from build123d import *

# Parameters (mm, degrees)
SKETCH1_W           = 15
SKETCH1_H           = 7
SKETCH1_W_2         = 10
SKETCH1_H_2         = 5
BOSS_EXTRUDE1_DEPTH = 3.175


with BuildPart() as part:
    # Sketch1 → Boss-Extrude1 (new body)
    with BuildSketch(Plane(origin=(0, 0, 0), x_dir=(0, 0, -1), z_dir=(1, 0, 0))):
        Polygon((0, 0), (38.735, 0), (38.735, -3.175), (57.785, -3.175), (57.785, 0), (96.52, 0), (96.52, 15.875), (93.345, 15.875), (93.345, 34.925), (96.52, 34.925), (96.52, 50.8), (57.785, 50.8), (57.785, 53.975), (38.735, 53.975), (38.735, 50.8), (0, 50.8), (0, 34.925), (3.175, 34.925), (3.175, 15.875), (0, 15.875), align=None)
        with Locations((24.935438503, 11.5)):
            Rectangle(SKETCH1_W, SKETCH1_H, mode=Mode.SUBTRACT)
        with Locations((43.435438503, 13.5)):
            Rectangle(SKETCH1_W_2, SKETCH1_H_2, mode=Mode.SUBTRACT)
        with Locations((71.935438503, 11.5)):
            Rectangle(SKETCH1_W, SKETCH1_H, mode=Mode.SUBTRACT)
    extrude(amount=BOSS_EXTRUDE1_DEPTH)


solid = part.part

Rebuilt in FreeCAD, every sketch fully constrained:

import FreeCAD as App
import Part
import Sketcher
from FreeCAD import Vector


def add_polygon(sketch, points):
    """Adds a closed chain of lines whose ends are joined by coincident constraints."""
    first, n = sketch.GeometryCount, len(points)
    for a, b in zip(points, points[1:] + points[:1]):
        sketch.addGeometry(Part.LineSegment(App.Vector(*a, 0), App.Vector(*b, 0)), False)
    for i in range(n):
        sketch.addConstraint(Sketcher.Constraint("Coincident", first + i, 2, first + (i + 1) % n, 1))

doc = App.newDocument("Part")
body = doc.addObject("PartDesign::Body", "Body")

sketch1 = body.newObject("Sketcher::SketchObject", "Sketch")
sketch1.AttachmentSupport = (doc.getObject("YZ_Plane"), [""])
sketch1.MapMode = "FlatFace"
add_polygon(sketch1, [(0, 0), (0, -38.7), (-3.2, -38.7), (-3.2, -57.8), (0, -57.8), (0, -96.5), (15.9, -96.5), (15.9, -93.3), (34.9, -93.3), (34.9, -96.5), (50.8, -96.5), (50.8, -57.8), (54, -57.8), (54, -38.7), (50.8, -38.7), (50.8, 0), (34.9, 0), (34.9, -3.2), (15.9, -3.2), (15.9, 0)])
add_polygon(sketch1, [(8, -32.4), (8, -17.4), (15, -17.4), (15, -32.4)])
add_polygon(sketch1, [(8, -79.4), (8, -64.4), (15, -64.4), (15, -79.4)])
add_polygon(sketch1, [(11, -48.4), (11, -38.4), (16, -38.4), (16, -48.4)])
sketch1.addConstraint(Sketcher.Constraint("Vertical", 0))
sketch1.addConstraint(Sketcher.Constraint("Horizontal", 1))
sketch1.addConstraint(Sketcher.Constraint("Vertical", 2))
sketch1.addConstraint(Sketcher.Constraint("Horizontal", 3))
sketch1.addConstraint(Sketcher.Constraint("Vertical", 4))
sketch1.addConstraint(Sketcher.Constraint("Horizontal", 5))
sketch1.addConstraint(Sketcher.Constraint("Vertical", 6))
sketch1.addConstraint(Sketcher.Constraint("Horizontal", 7))
sketch1.addConstraint(Sketcher.Constraint("Vertical", 8))
sketch1.addConstraint(Sketcher.Constraint("Horizontal", 9))
sketch1.addConstraint(Sketcher.Constraint("Vertical", 10))
sketch1.addConstraint(Sketcher.Constraint("Horizontal", 11))
sketch1.addConstraint(Sketcher.Constraint("Vertical", 12))
sketch1.addConstraint(Sketcher.Constraint("Horizontal", 13))
sketch1.addConstraint(Sketcher.Constraint("Vertical", 14))
sketch1.addConstraint(Sketcher.Constraint("Horizontal", 15))
sketch1.addConstraint(Sketcher.Constraint("Vertical", 16))
sketch1.addConstraint(Sketcher.Constraint("Horizontal", 17))
sketch1.addConstraint(Sketcher.Constraint("Vertical", 18))
sketch1.addConstraint(Sketcher.Constraint("Horizontal", 19))
sketch1.addConstraint(Sketcher.Constraint("Vertical", 20))
sketch1.addConstraint(Sketcher.Constraint("Horizontal", 21))
sketch1.addConstraint(Sketcher.Constraint("Vertical", 22))
sketch1.addConstraint(Sketcher.Constraint("Horizontal", 23))
sketch1.addConstraint(Sketcher.Constraint("Vertical", 24))
sketch1.addConstraint(Sketcher.Constraint("Horizontal", 25))
sketch1.addConstraint(Sketcher.Constraint("Vertical", 26))
sketch1.addConstraint(Sketcher.Constraint("Horizontal", 27))
sketch1.addConstraint(Sketcher.Constraint("Vertical", 28))
sketch1.addConstraint(Sketcher.Constraint("Horizontal", 29))
sketch1.addConstraint(Sketcher.Constraint("Vertical", 30))
sketch1.addConstraint(Sketcher.Constraint("Horizontal", 31))
sketch1.addConstraint(Sketcher.Constraint("Coincident", 19, 2, -1, 1))
sketch1.addConstraint(Sketcher.Constraint("PointOnObject", 3, 2, -2))
sketch1.addConstraint(Sketcher.Constraint("PointOnObject", 14, 2, -1))
sketch1.addConstraint(Sketcher.Constraint("Horizontal", 5, 2, 8, 2))
sketch1.addConstraint(Sketcher.Constraint("Horizontal", 3, 2, 10, 2))
sketch1.addConstraint(Sketcher.Constraint("Horizontal", 1, 2, 12, 2))
sketch1.addConstraint(Sketcher.Constraint("Vertical", 10, 2, 13, 2))
sketch1.addConstraint(Sketcher.Constraint("Vertical", 8, 2, 15, 2))
sketch1.addConstraint(Sketcher.Constraint("Vertical", 6, 2, 17, 2))
sketch1.addConstraint(Sketcher.Constraint("Vertical", 23, 2, 24, 2))
sketch1.addConstraint(Sketcher.Constraint("Vertical", 22, 2, 25, 2))
sketch1.addConstraint(Sketcher.Constraint("Equal", 5, 9))
sketch1.addConstraint(Sketcher.Constraint("Equal", 3, 11))
sketch1.addConstraint(Sketcher.Constraint("Equal", 17, 2))
sketch1.addConstraint(Sketcher.Constraint("Equal", 0, 4))
sketch1.addConstraint(Sketcher.Constraint("Equal", 13, 6))
sketch1.addConstraint(Sketcher.Constraint("Equal", 8, 16))
sketch1.addConstraint(Sketcher.Constraint("Equal", 22, 24))
sketch1.addConstraint(Sketcher.Constraint("DistanceX", 21, 1, 21, 2, 7.0))
sketch1.addConstraint(Sketcher.Constraint("DistanceX", 29, 1, 29, 2, 5.0))
sketch1.addConstraint(Sketcher.Constraint("DistanceY", 20, 1, 20, 2, 15.0))
sketch1.addConstraint(Sketcher.Constraint("DistanceY", 28, 1, 28, 2, 10.0))
sketch1.addConstraint(Sketcher.Constraint("DistanceX", -1, 1, 20, 2, 8.0))
sketch1.addConstraint(Sketcher.Constraint("DistanceX", -1, 1, 28, 2, 11.0))
sketch1.addConstraint(Sketcher.Constraint("DistanceY", 28, 2, 23, 2, 6.0))
sketch1.addConstraint(Sketcher.Constraint("DistanceY", 25, 2, 30, 2, 16.0))
sketch1.addConstraint(Sketcher.Constraint("DistanceX", 7, 1, 7, 2, 19.05))
sketch1.addConstraint(Sketcher.Constraint("DistanceX", -1, 1, 9, 2, 50.8))
sketch1.addConstraint(Sketcher.Constraint("DistanceX", 2, 2, 7, 2, 38.1))
sketch1.addConstraint(Sketcher.Constraint("DistanceY", 0, 2, 0, 1, 38.735))
sketch1.addConstraint(Sketcher.Constraint("DistanceY", 20, 2, -1, 1, 17.435439))
pad1 = body.newObject("PartDesign::Pad", "Pad")
pad1.Profile = sketch1
pad1.Length = 3.175

doc.recompute()
